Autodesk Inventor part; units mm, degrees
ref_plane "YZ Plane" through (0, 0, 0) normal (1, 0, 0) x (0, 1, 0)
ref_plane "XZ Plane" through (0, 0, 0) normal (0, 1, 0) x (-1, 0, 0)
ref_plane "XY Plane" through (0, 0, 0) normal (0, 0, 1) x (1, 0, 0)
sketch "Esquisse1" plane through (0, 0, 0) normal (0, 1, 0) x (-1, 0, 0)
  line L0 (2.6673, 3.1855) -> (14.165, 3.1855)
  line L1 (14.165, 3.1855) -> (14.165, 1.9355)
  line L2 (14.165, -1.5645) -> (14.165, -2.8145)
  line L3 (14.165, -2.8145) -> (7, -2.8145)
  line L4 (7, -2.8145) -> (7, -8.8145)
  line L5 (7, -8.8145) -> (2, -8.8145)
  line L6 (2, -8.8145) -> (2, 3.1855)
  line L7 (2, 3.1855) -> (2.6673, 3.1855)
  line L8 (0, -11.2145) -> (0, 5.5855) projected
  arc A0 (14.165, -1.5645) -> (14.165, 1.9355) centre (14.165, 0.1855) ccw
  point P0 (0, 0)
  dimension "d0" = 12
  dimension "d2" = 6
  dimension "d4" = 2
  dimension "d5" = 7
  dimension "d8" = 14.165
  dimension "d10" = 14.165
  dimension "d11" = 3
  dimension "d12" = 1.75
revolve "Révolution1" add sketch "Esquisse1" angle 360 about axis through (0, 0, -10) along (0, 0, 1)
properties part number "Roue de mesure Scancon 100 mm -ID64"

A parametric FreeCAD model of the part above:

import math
import FreeCAD as App
import Part
import Sketcher

doc = App.newDocument("Part")
body = doc.addObject("PartDesign::Body", "Body")

# Sketch on XZ plane
sketch1 = body.newObject("Sketcher::SketchObject", "Sketch")
sketch1.AttachmentSupport = (doc.getObject("XZ_Plane"), [""])
sketch1.MapMode = "FlatFace"
sketch1.addGeometry(Part.LineSegment(App.Vector(-14.2, 3.2, 0), App.Vector(-2, 3.2, 0)), False)
sketch1.addGeometry(Part.LineSegment(App.Vector(-2, 3.2, 0), App.Vector(-2, -8.8, 0)), False)
sketch1.addGeometry(Part.LineSegment(App.Vector(-2, -8.8, 0), App.Vector(-7, -8.8, 0)), False)
sketch1.addGeometry(Part.LineSegment(App.Vector(-7, -8.8, 0), App.Vector(-7, -2.8, 0)), False)
sketch1.addGeometry(Part.LineSegment(App.Vector(-7, -2.8, 0), App.Vector(-14.2, -2.8, 0)), False)
sketch1.addGeometry(Part.LineSegment(App.Vector(-14.2, -2.8, 0), App.Vector(-14.2, -1.6, 0)), False)
sketch1.addGeometry(Part.ArcOfCircle(Part.Circle(App.Vector(-14.2, 0.2, 0), App.Vector(0, 0, 1), 1.8), math.radians(90), math.radians(270)), False)
sketch1.addGeometry(Part.LineSegment(App.Vector(-14.2, 1.9, 0), App.Vector(-14.2, 3.2, 0)), False)
sketch1.addConstraint(Sketcher.Constraint("Coincident", 0, 2, 1, 1))
sketch1.addConstraint(Sketcher.Constraint("Coincident", 1, 2, 2, 1))
sketch1.addConstraint(Sketcher.Constraint("Coincident", 2, 2, 3, 1))
sketch1.addConstraint(Sketcher.Constraint("Coincident", 3, 2, 4, 1))
sketch1.addConstraint(Sketcher.Constraint("Coincident", 4, 2, 5, 1))
sketch1.addConstraint(Sketcher.Constraint("Coincident", 5, 2, 6, 2))
sketch1.addConstraint(Sketcher.Constraint("Coincident", 6, 1, 7, 1))
sketch1.addConstraint(Sketcher.Constraint("Coincident", 7, 2, 0, 1))
sketch1.addConstraint(Sketcher.Constraint("Horizontal", 0))
sketch1.addConstraint(Sketcher.Constraint("Vertical", 1))
sketch1.addConstraint(Sketcher.Constraint("Horizontal", 2))
sketch1.addConstraint(Sketcher.Constraint("Vertical", 3))
sketch1.addConstraint(Sketcher.Constraint("Horizontal", 4))
sketch1.addConstraint(Sketcher.Constraint("Vertical", 5))
sketch1.addConstraint(Sketcher.Constraint("Vertical", 7))
sketch1.addConstraint(Sketcher.Constraint("Vertical", 6, 3, 4, 2))
sketch1.addConstraint(Sketcher.Constraint("Vertical", 5, 2, 6, 1))
sketch1.addConstraint(Sketcher.Constraint("Equal", 5, 7))
sketch1.addConstraint(Sketcher.Constraint("DistanceY", 1, 2, 1, 1, 12.0))
sketch1.addConstraint(Sketcher.Constraint("DistanceY", 3, 1, 3, 2, 6.0))
sketch1.addConstraint(Sketcher.Constraint("Radius", 6, 1.75))
sketch1.addConstraint(Sketcher.Constraint("DistanceX", 0, 2, -1, 1, 2.0))
sketch1.addConstraint(Sketcher.Constraint("DistanceX", 2, 2, -1, 1, 7.0))
sketch1.addConstraint(Sketcher.Constraint("DistanceX", 6, 3, -1, 1, 14.165))
sketch1.addConstraint(Sketcher.Constraint("DistanceY", -1, 1, 6, 3, 0.1855))
revolution = body.newObject("PartDesign::Revolution", "Revolution")
revolution.Profile = sketch1
revolution.ReferenceAxis = (sketch1, ["V_Axis"])
revolution.Angle = 360

doc.recompute()
